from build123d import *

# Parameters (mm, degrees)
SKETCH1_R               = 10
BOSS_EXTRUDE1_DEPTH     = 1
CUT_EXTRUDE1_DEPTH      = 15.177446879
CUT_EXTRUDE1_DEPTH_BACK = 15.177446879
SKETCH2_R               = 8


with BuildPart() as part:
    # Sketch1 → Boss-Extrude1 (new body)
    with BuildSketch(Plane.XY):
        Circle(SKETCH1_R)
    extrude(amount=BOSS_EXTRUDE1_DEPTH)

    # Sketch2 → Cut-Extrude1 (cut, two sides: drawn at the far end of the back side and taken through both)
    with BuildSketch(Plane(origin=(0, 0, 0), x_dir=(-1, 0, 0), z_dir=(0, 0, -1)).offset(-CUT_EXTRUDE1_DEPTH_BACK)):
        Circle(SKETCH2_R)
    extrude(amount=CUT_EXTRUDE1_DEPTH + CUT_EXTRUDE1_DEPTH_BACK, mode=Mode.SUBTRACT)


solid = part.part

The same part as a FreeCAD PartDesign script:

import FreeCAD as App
import Part
import Sketcher
Q = App.Units.Quantity

doc = App.newDocument("Part")
body = doc.addObject("PartDesign::Body", "Body")

sketch1 = body.newObject("Sketcher::SketchObject", "Sketch")
sketch1.AttachmentSupport = (doc.getObject("XY_Plane"), [""])
sketch1.MapMode = "FlatFace"
sketch1.addGeometry(Part.Circle(App.Vector(0, 0, 0), App.Vector(0, 0, 1), 10), False)
sketch1.addConstraint([
    Sketcher.Constraint("Coincident", 0, 3, -1, 1),
    Sketcher.Constraint("Diameter", 0, Q("20 mm")),
])
pad1 = body.newObject("PartDesign::Pad", "Pad")
pad1.Profile = sketch1
pad1.Length = 1

sketch2 = body.newObject("Sketcher::SketchObject", "Sketch001")
sketch2.AttachmentSupport = (doc.getObject("XY_Plane"), [""])
sketch2.MapMode = "FlatFace"
sketch2.addGeometry(Part.Circle(App.Vector(0, 0, 0), App.Vector(0, 0, 1), 8), False)
sketch2.addConstraint([
    Sketcher.Constraint("Coincident", 0, 3, -1, 1),
    Sketcher.Constraint("Diameter", 0, Q("16 mm")),
])
pocket1 = body.newObject("PartDesign::Pocket", "Pocket")
pocket1.Profile = sketch2
pocket1.Type = "ThroughAll"
pocket1.Midplane = True

doc.recompute()
